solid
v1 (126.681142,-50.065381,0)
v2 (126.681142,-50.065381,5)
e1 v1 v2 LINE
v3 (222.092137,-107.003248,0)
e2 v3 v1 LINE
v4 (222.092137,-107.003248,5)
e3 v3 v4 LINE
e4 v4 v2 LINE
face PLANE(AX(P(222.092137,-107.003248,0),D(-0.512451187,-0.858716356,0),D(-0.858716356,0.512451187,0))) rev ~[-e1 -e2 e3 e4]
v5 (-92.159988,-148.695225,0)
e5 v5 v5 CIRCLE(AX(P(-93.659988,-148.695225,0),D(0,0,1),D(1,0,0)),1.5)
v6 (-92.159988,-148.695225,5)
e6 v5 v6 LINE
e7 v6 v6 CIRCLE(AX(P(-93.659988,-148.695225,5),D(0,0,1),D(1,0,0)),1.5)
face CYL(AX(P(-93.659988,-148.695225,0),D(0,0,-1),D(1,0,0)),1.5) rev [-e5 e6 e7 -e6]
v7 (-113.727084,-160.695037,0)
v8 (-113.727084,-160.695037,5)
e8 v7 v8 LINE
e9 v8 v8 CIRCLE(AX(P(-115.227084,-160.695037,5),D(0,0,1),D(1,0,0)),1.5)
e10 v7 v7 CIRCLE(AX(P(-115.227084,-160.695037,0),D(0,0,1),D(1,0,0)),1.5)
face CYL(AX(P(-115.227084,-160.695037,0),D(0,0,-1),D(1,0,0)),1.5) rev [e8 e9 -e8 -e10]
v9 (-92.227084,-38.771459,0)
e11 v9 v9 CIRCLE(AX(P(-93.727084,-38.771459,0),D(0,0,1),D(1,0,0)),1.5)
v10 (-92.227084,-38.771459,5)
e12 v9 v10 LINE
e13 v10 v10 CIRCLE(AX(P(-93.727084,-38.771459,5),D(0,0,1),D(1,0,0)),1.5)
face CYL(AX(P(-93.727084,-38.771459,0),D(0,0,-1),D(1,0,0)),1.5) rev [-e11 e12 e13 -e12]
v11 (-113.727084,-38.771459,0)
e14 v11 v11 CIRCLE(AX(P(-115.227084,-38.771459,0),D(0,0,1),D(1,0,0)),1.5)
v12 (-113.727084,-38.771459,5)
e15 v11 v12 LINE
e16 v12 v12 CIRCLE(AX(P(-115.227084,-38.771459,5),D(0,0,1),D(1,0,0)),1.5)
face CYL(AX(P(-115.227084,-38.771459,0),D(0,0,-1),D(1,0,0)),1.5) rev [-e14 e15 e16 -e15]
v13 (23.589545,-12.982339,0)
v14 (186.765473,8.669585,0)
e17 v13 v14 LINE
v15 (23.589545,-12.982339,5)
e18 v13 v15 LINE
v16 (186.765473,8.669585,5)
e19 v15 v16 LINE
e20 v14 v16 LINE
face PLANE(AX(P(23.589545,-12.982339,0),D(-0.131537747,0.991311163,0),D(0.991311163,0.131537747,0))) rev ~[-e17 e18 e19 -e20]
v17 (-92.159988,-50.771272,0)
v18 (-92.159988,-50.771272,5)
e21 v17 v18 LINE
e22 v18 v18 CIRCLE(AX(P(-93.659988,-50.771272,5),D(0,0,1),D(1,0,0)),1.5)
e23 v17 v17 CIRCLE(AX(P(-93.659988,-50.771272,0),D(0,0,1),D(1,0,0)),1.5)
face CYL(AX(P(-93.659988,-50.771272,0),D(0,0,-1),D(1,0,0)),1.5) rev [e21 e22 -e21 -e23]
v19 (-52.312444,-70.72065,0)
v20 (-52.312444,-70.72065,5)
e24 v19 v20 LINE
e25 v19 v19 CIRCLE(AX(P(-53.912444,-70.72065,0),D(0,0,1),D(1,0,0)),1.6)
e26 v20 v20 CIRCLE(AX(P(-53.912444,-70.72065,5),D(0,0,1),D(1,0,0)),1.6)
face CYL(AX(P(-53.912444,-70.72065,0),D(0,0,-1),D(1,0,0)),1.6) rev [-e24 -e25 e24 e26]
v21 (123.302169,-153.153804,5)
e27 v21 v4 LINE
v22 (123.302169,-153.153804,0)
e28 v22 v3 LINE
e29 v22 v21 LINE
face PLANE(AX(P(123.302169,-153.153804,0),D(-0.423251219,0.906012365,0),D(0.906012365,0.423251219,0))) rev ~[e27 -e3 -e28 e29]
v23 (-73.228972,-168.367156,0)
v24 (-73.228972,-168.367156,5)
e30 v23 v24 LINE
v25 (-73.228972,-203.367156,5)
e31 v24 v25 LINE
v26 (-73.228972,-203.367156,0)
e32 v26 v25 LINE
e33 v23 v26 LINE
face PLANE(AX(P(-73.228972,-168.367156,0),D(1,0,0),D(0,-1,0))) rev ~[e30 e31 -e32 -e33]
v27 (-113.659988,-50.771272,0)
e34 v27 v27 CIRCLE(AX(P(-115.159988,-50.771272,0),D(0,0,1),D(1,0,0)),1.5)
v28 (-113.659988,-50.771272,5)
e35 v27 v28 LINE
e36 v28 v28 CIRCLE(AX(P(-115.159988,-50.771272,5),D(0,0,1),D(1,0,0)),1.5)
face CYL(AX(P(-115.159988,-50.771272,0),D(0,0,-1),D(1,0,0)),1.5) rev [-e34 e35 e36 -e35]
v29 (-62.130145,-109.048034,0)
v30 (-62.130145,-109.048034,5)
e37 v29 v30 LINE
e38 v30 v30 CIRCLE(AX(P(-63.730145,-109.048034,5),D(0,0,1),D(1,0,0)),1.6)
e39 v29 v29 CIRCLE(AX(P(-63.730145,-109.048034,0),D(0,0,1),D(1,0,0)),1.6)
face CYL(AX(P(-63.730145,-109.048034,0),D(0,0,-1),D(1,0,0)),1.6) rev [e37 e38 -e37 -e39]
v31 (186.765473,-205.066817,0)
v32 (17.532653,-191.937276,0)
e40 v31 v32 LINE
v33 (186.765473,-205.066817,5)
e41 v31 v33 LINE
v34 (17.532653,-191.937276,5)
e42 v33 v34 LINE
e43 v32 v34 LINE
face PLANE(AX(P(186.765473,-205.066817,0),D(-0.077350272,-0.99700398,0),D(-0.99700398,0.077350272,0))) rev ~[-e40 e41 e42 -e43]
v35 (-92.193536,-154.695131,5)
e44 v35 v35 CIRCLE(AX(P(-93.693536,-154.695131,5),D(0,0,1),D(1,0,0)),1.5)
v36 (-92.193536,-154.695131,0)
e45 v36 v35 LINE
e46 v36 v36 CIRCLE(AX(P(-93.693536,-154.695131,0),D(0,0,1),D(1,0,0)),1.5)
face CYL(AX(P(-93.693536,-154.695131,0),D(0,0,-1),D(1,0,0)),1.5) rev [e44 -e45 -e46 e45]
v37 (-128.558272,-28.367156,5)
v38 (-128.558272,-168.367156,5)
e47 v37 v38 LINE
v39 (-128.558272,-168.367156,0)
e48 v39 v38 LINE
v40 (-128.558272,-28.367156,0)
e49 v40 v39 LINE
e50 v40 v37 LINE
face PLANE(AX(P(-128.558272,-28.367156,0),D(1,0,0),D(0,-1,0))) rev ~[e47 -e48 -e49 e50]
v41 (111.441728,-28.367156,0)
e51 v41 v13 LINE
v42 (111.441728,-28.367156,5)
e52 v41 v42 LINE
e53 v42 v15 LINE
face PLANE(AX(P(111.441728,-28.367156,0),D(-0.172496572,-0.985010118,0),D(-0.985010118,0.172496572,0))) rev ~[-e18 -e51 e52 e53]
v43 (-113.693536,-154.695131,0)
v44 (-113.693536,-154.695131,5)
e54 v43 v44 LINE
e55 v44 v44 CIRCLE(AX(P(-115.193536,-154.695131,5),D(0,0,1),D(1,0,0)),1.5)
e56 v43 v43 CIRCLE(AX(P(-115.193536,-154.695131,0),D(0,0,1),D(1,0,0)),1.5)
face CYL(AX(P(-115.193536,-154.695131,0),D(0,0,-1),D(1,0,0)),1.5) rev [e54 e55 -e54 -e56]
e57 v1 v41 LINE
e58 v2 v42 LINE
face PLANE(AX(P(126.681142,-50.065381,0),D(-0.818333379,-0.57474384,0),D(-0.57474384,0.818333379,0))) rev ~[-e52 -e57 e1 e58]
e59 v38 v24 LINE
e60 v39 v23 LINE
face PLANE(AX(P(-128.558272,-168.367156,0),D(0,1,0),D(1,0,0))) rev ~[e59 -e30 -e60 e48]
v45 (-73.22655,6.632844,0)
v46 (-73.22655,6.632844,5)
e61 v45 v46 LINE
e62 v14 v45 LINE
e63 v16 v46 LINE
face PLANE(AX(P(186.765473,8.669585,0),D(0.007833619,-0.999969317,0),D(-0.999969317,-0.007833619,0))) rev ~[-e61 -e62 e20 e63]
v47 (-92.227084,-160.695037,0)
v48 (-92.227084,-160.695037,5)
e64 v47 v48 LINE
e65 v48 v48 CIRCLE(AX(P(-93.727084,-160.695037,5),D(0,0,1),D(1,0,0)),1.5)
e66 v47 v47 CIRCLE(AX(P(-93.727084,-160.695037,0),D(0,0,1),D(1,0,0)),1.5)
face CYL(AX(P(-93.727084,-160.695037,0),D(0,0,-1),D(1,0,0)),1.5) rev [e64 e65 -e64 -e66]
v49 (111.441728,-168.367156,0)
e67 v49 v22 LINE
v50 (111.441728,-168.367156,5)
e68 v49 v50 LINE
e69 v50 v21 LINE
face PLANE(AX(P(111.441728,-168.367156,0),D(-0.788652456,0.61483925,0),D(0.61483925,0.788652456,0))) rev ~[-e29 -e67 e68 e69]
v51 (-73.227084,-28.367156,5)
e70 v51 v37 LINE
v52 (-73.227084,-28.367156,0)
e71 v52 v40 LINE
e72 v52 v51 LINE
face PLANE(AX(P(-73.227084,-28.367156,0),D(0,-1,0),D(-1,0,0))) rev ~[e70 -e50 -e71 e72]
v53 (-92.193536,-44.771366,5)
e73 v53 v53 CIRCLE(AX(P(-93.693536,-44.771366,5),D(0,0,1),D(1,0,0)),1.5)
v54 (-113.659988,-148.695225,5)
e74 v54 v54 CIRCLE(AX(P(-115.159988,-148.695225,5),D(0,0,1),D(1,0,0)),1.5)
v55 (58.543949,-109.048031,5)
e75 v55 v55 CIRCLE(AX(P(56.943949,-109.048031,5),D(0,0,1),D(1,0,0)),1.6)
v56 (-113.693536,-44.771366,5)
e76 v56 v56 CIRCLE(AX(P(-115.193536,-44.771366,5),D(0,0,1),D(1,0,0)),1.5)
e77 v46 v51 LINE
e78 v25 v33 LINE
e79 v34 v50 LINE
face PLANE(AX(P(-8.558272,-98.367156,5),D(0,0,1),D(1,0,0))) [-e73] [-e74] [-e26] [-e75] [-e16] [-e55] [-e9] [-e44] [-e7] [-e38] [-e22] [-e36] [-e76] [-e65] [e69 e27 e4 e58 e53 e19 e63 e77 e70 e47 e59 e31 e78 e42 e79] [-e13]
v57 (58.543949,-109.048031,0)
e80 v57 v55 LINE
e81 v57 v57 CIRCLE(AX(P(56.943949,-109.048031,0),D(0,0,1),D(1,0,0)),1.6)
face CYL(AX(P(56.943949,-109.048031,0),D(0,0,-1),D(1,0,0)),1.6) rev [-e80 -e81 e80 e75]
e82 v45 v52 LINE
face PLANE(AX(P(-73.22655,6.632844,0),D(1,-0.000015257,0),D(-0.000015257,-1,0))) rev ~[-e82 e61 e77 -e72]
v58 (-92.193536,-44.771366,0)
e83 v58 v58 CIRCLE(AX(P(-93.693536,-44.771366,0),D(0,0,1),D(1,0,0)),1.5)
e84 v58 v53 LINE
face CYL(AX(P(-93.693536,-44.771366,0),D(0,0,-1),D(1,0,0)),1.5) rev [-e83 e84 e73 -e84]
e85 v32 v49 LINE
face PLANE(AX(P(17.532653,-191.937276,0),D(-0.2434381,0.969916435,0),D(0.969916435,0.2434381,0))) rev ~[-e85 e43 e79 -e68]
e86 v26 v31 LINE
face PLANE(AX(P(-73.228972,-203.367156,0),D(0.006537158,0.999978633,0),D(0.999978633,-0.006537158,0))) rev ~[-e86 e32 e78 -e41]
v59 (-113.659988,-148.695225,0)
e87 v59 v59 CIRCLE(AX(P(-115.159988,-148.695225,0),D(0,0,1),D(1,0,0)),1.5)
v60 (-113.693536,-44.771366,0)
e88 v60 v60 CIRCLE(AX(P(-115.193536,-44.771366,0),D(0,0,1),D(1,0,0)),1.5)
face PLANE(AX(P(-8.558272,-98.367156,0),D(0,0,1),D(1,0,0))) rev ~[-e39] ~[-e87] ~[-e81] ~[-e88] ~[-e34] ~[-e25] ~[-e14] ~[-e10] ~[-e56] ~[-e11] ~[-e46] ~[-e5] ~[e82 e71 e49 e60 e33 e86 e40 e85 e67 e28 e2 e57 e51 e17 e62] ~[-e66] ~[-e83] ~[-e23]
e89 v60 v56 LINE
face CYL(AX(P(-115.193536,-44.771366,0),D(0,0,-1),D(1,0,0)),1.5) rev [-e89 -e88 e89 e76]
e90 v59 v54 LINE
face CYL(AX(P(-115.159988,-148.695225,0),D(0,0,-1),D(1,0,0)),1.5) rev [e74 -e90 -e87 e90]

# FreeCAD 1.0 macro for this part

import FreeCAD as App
import Part
import Sketcher

V = App.Vector
Q = App.Units.Quantity


def add_polygon(sketch, points):
    """Adds a closed chain of lines whose ends are joined by coincident constraints."""
    first, n = sketch.GeometryCount, len(points)
    for a, b in zip(points, points[1:] + points[:1]):
        sketch.addGeometry(Part.LineSegment(App.Vector(*a, 0), App.Vector(*b, 0)), False)
    for i in range(n):
        sketch.addConstraint(Sketcher.Constraint("Coincident", first + i, 2, first + (i + 1) % n, 1))

doc = App.newDocument("Part")
body = doc.addObject("PartDesign::Body", "Body")

# Sketch on XY plane
sketch1 = body.newObject("Sketcher::SketchObject", "Sketch")
sketch1.AttachmentSupport = (doc.getObject("XY_Plane"), [""])
sketch1.MapMode = "FlatFace"
add_polygon(sketch1, [(-128.6, -28.4), (-128.6, -168.4), (-73.2, -168.4), (-73.2, -203.4), (186.8, -205.1), (17.5, -191.9), (111.4, -168.4), (123.3, -153.2), (222.1, -107), (126.7, -50.1), (111.4, -28.4), (23.6, -13), (186.8, 8.7), (-73.2, 6.6), (-73.2, -28.4)])  # lines 0-14
sketch1.addGeometry(Part.Circle(V(-115.2, -160.7, 0), V(0, 0, 1), 1.5), False)  # 15
sketch1.addGeometry(Part.Circle(V(-115.2, -154.7, 0), V(0, 0, 1), 1.5), False)  # 16
sketch1.addGeometry(Part.Circle(V(-115.2, -148.7, 0), V(0, 0, 1), 1.5), False)  # 17
sketch1.addGeometry(Part.Circle(V(-93.7, -160.7, 0), V(0, 0, 1), 1.5), False)  # 18
sketch1.addGeometry(Part.Circle(V(-93.7, -154.7, 0), V(0, 0, 1), 1.5), False)  # 19
sketch1.addGeometry(Part.Circle(V(-93.7, -148.7, 0), V(0, 0, 1), 1.5), False)  # 20
sketch1.addGeometry(Part.Circle(V(-63.7, -109, 0), V(0, 0, 1), 1.6), False)  # 21
sketch1.addGeometry(Part.Circle(V(56.9, -109, 0), V(0, 0, 1), 1.6), False)  # 22
sketch1.addGeometry(Part.Circle(V(-53.9, -70.7, 0), V(0, 0, 1), 1.6), False)  # 23
sketch1.addGeometry(Part.Circle(V(-115.2, -50.8, 0), V(0, 0, 1), 1.5), False)  # 24
sketch1.addGeometry(Part.Circle(V(-115.2, -44.8, 0), V(0, 0, 1), 1.5), False)  # 25
sketch1.addGeometry(Part.Circle(V(-115.2, -38.8, 0), V(0, 0, 1), 1.5), False)  # 26
sketch1.addGeometry(Part.Circle(V(-93.7, -50.8, 0), V(0, 0, 1), 1.5), False)  # 27
sketch1.addGeometry(Part.Circle(V(-93.7, -44.8, 0), V(0, 0, 1), 1.5), False)  # 28
sketch1.addGeometry(Part.Circle(V(-93.7, -38.8, 0), V(0, 0, 1), 1.5), False)  # 29
sketch1.addConstraint(Sketcher.Constraint("Vertical", 0))
sketch1.addConstraint(Sketcher.Constraint("Horizontal", 1))
sketch1.addConstraint(Sketcher.Constraint("Vertical", 2))
sketch1.addConstraint(Sketcher.Constraint("Horizontal", 14))
sketch1.addConstraint(Sketcher.Constraint("Equal", 15, 16))
sketch1.addConstraint(Sketcher.Constraint("Equal", 16, 17))
sketch1.addConstraint(Sketcher.Constraint("Equal", 17, 18))
sketch1.addConstraint(Sketcher.Constraint("Equal", 18, 19))
sketch1.addConstraint(Sketcher.Constraint("Equal", 19, 20))
sketch1.addConstraint(Sketcher.Constraint("Equal", 21, 22))
sketch1.addConstraint(Sketcher.Constraint("Equal", 22, 23))
sketch1.addConstraint(Sketcher.Constraint("Equal", 20, 24))
sketch1.addConstraint(Sketcher.Constraint("Equal", 24, 25))
sketch1.addConstraint(Sketcher.Constraint("Equal", 25, 26))
sketch1.addConstraint(Sketcher.Constraint("Equal", 26, 27))
sketch1.addConstraint(Sketcher.Constraint("Equal", 27, 28))
sketch1.addConstraint(Sketcher.Constraint("Equal", 28, 29))
sketch1.addConstraint(Sketcher.Constraint("Horizontal", 15, 3, 18, 3))
sketch1.addConstraint(Sketcher.Constraint("Horizontal", 16, 3, 19, 3))
sketch1.addConstraint(Sketcher.Constraint("Horizontal", 17, 3, 20, 3))
sketch1.addConstraint(Sketcher.Constraint("Horizontal", 24, 3, 27, 3))
sketch1.addConstraint(Sketcher.Constraint("Horizontal", 25, 3, 28, 3))
sketch1.addConstraint(Sketcher.Constraint("Horizontal", 26, 3, 29, 3))
sketch1.addConstraint(Sketcher.Constraint("Horizontal", 1, 2, 5, 2))
sketch1.addConstraint(Sketcher.Constraint("Horizontal", 9, 2, 13, 2))
sketch1.addConstraint(Sketcher.Constraint("Vertical", 17, 3, 24, 3))
sketch1.addConstraint(Sketcher.Constraint("Vertical", 16, 3, 25, 3))
sketch1.addConstraint(Sketcher.Constraint("Vertical", 15, 3, 26, 3))
sketch1.addConstraint(Sketcher.Constraint("Vertical", 20, 3, 27, 3))
sketch1.addConstraint(Sketcher.Constraint("Vertical", 19, 3, 28, 3))
sketch1.addConstraint(Sketcher.Constraint("Vertical", 18, 3, 29, 3))
sketch1.addConstraint(Sketcher.Constraint("Vertical", 5, 2, 9, 2))
sketch1.addConstraint(Sketcher.Constraint("Vertical", 3, 2, 11, 2))
sketch1.addConstraint(Sketcher.Constraint("Equal", 3, 12))
sketch1.addConstraint(Sketcher.Constraint("Diameter", 15, Q("3 mm")))
sketch1.addConstraint(Sketcher.Constraint("Diameter", 21, Q("3.2 mm")))
sketch1.addConstraint(Sketcher.Constraint("DistanceY", 0, 2, 0, 1, Q("140 mm")))
sketch1.addConstraint(Sketcher.Constraint("DistanceY", 2, 2, 2, 1, Q("35 mm")))
sketch1.addConstraint(Sketcher.Constraint("Distance", 3, Q("260.000001 mm")))
sketch1.addConstraint(Sketcher.Constraint("Distance", 13, Q("35 mm")))
sketch1.addConstraint(Sketcher.Constraint("DistanceX", 26, 3, 13, 2, Q("42 mm")))
sketch1.addConstraint(Sketcher.Constraint("DistanceX", 15, 3, 18, 3, Q("21.5 mm")))
sketch1.addConstraint(Sketcher.Constraint("DistanceX", 16, 3, 19, 3, Q("21.5 mm")))
sketch1.addConstraint(Sketcher.Constraint("DistanceX", 17, 3, 20, 3, Q("21.5 mm")))
sketch1.addConstraint(Sketcher.Constraint("DistanceX", 1, 1, 1, 2, Q("55.3293 mm")))
sketch1.addConstraint(Sketcher.Constraint("DistanceY", 19, 3, 22, 3, Q("45.6471 mm")))
sketch1.addConstraint(Sketcher.Constraint("DistanceX", 21, 3, 23, 3, Q("9.817701 mm")))
sketch1.addConstraint(Sketcher.Constraint("DistanceX", 21, 3, 4, 2, Q("81.262798 mm")))
sketch1.addConstraint(Sketcher.Constraint("DistanceX", 1, 2, 5, 2, Q("184.6707 mm")))
sketch1.addConstraint(Sketcher.Constraint("Distance", 4, Q("169.741369 mm")))
sketch1.addConstraint(Sketcher.Constraint("Distance", 5, Q("96.82182 mm")))
sketch1.addConstraint(Sketcher.Constraint("Distance", 7, Q("109.038212 mm")))
sketch1.addConstraint(Sketcher.Constraint("Distance", 8, Q("111.10886 mm")))
sketch1.addConstraint(Sketcher.Constraint("Distance", 9, Q("26.515141 mm")))
sketch1.addConstraint(Sketcher.Constraint("DistanceX", 14, 2, 14, 1, Q("55.331188 mm")))
sketch1.addConstraint(Sketcher.Constraint("DistanceY", 16, 3, -1, 1, Q("154.695131 mm")))
sketch1.addConstraint(Sketcher.Constraint("DistanceX", 17, 3, -1, 1, Q("115.159988 mm")))
sketch1.addConstraint(Sketcher.Constraint("DistanceX", -1, 1, 22, 3, Q("56.943949 mm")))
sketch1.addConstraint(Sketcher.Constraint("DistanceY", 23, 3, -1, 1, Q("70.72065 mm")))
sketch1.addConstraint(Sketcher.Constraint("DistanceY", 26, 3, -1, 1, Q("38.771459 mm")))
sketch1.addConstraint(Sketcher.Constraint("DistanceX", 0, 2, -1, 1, Q("128.558272 mm")))
sketch1.addConstraint(Sketcher.Constraint("DistanceX", -1, 1, 6, 2, Q("123.302169 mm")))
sketch1.addConstraint(Sketcher.Constraint("DistanceY", 7, 2, -1, 1, Q("107.003248 mm")))
sketch1.addConstraint(Sketcher.Constraint("DistanceX", -1, 1, 8, 2, Q("126.681142 mm")))
sketch1.addConstraint(Sketcher.Constraint("DistanceY", 8, 2, -1, 1, Q("50.065381 mm")))
sketch1.addConstraint(Sketcher.Constraint("DistanceY", 10, 2, -1, 1, Q("12.982339 mm")))
sketch1.addConstraint(Sketcher.Constraint("DistanceX", 12, 2, -1, 1, Q("73.22655 mm")))
sketch1.addConstraint(Sketcher.Constraint("DistanceX", 15, 3, 16, 3, Q("0.033548 mm")))
sketch1.addConstraint(Sketcher.Constraint("DistanceY", 20, 3, 21, 3, Q("39.647191 mm")))
sketch1.addConstraint(Sketcher.Constraint("DistanceX", 19, 3, 21, 3, Q("29.963391 mm")))
sketch1.addConstraint(Sketcher.Constraint("DistanceY", 23, 3, 24, 3, Q("19.949378 mm")))
sketch1.addConstraint(Sketcher.Constraint("DistanceY", 21, 3, 24, 3, Q("58.276762 mm")))
sketch1.addConstraint(Sketcher.Constraint("DistanceY", 21, 3, 25, 3, Q("64.276668 mm")))
sketch1.addConstraint(Sketcher.Constraint("DistanceY", 0, 2, 15, 3, Q("7.672119 mm")))
sketch1.addConstraint(Sketcher.Constraint("DistanceX", 23, 3, 10, 2, Q("77.501989 mm")))
pad1 = body.newObject("PartDesign::Pad", "Pad")
pad1.Profile = sketch1
pad1.Length = 5

doc.recompute()
